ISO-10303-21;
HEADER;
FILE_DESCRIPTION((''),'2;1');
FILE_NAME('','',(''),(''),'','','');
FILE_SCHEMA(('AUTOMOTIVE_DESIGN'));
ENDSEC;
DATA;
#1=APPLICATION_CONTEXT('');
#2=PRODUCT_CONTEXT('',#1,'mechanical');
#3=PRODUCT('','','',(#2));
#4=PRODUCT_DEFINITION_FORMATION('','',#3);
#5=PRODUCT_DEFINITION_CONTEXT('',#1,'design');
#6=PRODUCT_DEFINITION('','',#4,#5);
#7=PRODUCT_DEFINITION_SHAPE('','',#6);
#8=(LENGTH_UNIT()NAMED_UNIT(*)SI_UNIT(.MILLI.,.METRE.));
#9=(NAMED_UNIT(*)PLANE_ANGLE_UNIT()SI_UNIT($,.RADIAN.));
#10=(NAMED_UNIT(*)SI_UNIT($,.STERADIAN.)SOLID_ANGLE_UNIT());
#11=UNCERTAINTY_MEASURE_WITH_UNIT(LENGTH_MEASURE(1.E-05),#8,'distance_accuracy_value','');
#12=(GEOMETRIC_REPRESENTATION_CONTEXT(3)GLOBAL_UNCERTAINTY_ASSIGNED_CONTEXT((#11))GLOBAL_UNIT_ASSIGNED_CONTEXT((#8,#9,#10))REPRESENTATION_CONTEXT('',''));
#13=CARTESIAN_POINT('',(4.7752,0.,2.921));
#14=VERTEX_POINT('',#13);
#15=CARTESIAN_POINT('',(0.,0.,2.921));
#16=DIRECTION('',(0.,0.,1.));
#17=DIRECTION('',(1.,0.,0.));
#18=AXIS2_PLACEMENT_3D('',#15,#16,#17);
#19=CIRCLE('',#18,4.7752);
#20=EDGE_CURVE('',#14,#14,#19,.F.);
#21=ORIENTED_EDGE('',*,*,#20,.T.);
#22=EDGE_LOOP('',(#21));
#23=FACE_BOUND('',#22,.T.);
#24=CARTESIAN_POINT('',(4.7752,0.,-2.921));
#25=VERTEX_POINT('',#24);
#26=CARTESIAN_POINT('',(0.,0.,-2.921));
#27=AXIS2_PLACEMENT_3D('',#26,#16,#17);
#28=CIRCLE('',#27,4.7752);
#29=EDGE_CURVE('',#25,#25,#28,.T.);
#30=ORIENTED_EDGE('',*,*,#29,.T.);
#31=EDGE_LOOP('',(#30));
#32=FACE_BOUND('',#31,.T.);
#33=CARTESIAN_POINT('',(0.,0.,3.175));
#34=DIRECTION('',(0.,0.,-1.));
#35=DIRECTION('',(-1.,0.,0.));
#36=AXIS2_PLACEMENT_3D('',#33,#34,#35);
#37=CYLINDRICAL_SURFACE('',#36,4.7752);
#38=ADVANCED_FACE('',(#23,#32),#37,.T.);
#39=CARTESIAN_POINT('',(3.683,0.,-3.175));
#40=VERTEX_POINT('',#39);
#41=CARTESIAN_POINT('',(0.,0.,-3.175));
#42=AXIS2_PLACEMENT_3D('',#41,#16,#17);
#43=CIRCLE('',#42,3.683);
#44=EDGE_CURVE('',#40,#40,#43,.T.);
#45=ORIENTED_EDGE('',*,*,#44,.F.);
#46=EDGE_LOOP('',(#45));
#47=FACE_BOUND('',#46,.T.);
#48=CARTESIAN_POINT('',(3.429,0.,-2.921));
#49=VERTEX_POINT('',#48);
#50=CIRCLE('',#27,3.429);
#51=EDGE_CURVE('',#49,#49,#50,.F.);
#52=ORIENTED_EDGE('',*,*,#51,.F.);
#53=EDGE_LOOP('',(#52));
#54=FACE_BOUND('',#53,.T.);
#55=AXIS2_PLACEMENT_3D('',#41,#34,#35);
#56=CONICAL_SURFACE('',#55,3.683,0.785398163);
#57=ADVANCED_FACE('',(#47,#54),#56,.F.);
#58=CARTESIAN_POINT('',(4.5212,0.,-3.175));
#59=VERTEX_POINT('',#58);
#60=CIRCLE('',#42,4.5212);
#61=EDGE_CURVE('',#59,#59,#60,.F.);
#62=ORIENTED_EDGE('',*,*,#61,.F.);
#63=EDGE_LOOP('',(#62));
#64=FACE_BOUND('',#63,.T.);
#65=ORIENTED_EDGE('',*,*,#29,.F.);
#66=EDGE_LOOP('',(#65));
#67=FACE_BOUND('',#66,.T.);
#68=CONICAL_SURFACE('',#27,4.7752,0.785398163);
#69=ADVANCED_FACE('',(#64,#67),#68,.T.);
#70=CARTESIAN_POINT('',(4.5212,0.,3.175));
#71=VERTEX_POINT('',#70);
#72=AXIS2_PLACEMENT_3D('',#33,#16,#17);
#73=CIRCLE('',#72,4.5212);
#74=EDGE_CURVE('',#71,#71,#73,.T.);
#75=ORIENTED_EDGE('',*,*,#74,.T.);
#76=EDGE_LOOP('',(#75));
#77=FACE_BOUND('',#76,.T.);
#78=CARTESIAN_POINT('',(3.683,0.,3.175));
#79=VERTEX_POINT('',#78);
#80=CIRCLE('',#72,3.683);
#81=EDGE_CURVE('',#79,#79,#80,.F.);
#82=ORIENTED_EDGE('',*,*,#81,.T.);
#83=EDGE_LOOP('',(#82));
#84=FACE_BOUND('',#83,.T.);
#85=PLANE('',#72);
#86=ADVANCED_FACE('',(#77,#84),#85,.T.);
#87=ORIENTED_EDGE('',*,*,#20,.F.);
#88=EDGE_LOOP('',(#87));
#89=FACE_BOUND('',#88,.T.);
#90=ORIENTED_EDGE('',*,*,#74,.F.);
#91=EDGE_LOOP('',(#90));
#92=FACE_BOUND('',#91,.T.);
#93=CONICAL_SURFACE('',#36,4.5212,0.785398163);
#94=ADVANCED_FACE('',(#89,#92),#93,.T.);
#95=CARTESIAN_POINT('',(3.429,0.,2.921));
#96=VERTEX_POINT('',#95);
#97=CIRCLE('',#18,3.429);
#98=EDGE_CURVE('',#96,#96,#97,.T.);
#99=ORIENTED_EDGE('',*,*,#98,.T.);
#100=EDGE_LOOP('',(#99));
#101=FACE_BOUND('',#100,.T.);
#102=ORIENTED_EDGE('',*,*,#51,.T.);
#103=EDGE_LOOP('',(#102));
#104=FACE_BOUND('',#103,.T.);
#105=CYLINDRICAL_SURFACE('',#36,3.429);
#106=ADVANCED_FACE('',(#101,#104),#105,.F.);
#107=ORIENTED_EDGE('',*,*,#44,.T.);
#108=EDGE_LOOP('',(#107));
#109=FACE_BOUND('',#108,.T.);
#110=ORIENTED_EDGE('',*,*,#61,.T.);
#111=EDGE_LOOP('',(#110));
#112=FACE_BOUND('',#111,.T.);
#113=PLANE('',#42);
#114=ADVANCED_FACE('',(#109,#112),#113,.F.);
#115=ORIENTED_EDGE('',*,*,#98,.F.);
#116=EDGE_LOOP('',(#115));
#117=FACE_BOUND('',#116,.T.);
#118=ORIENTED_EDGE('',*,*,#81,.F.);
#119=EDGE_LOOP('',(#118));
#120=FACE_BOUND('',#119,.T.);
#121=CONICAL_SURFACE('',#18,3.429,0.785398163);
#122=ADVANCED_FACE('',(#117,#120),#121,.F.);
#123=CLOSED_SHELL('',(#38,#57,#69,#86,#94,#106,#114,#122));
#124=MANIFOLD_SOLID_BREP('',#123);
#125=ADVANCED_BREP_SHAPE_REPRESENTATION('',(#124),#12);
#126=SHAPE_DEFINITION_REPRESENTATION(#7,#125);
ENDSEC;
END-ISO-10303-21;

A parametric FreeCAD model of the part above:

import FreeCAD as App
import Part
import Sketcher
Q = App.Units.Quantity


def edges_at(feature, points):
    """Names of the edges that pass closest to the given points."""
    edges = feature.Shape.Edges
    near = lambda p: min(range(len(edges)), key=lambda i: edges[i].distToShape(Part.Vertex(*p))[0])
    return sorted({f"Edge{near(p) + 1}" for p in points})

doc = App.newDocument("Part")
body = doc.addObject("PartDesign::Body", "Body")

sketch1 = body.newObject("Sketcher::SketchObject", "Sketch")
sketch1.AttachmentSupport = (doc.getObject("XY_Plane"), [""])
sketch1.MapMode = "FlatFace"
sketch1.addGeometry([
    Part.Circle(App.Vector(0, 0, 0), App.Vector(0, 0, 1), 4.8),
    Part.Circle(App.Vector(0, 0, 0), App.Vector(0, 0, 1), 3.4),
], False)
sketch1.addConstraint([
    Sketcher.Constraint("Coincident", 0, 3, -1, 1),
    Sketcher.Constraint("Coincident", 1, 3, -1, 1),
    Sketcher.Constraint("Diameter", 1, Q("0.27 in")),
    Sketcher.Constraint("Diameter", 0, Q("0.376 in")),
])
pad1 = body.newObject("PartDesign::Pad", "Pad")
pad1.Profile = sketch1
pad1.Length = Q("0.25 in")
pad1.Midplane = True
doc.recompute()

chamfer = body.newObject("PartDesign::Chamfer", "Chamfer")
chamfer.Base = (pad1, edges_at(pad1, [
    (-4.775, 0, -3.175),
    (-4.775, 0, 3.175),
    (-3.429, 0, -3.175),
    (-3.429, 0, 3.175),
]))
chamfer.Size = Q("0.01 in")

doc.recompute()
